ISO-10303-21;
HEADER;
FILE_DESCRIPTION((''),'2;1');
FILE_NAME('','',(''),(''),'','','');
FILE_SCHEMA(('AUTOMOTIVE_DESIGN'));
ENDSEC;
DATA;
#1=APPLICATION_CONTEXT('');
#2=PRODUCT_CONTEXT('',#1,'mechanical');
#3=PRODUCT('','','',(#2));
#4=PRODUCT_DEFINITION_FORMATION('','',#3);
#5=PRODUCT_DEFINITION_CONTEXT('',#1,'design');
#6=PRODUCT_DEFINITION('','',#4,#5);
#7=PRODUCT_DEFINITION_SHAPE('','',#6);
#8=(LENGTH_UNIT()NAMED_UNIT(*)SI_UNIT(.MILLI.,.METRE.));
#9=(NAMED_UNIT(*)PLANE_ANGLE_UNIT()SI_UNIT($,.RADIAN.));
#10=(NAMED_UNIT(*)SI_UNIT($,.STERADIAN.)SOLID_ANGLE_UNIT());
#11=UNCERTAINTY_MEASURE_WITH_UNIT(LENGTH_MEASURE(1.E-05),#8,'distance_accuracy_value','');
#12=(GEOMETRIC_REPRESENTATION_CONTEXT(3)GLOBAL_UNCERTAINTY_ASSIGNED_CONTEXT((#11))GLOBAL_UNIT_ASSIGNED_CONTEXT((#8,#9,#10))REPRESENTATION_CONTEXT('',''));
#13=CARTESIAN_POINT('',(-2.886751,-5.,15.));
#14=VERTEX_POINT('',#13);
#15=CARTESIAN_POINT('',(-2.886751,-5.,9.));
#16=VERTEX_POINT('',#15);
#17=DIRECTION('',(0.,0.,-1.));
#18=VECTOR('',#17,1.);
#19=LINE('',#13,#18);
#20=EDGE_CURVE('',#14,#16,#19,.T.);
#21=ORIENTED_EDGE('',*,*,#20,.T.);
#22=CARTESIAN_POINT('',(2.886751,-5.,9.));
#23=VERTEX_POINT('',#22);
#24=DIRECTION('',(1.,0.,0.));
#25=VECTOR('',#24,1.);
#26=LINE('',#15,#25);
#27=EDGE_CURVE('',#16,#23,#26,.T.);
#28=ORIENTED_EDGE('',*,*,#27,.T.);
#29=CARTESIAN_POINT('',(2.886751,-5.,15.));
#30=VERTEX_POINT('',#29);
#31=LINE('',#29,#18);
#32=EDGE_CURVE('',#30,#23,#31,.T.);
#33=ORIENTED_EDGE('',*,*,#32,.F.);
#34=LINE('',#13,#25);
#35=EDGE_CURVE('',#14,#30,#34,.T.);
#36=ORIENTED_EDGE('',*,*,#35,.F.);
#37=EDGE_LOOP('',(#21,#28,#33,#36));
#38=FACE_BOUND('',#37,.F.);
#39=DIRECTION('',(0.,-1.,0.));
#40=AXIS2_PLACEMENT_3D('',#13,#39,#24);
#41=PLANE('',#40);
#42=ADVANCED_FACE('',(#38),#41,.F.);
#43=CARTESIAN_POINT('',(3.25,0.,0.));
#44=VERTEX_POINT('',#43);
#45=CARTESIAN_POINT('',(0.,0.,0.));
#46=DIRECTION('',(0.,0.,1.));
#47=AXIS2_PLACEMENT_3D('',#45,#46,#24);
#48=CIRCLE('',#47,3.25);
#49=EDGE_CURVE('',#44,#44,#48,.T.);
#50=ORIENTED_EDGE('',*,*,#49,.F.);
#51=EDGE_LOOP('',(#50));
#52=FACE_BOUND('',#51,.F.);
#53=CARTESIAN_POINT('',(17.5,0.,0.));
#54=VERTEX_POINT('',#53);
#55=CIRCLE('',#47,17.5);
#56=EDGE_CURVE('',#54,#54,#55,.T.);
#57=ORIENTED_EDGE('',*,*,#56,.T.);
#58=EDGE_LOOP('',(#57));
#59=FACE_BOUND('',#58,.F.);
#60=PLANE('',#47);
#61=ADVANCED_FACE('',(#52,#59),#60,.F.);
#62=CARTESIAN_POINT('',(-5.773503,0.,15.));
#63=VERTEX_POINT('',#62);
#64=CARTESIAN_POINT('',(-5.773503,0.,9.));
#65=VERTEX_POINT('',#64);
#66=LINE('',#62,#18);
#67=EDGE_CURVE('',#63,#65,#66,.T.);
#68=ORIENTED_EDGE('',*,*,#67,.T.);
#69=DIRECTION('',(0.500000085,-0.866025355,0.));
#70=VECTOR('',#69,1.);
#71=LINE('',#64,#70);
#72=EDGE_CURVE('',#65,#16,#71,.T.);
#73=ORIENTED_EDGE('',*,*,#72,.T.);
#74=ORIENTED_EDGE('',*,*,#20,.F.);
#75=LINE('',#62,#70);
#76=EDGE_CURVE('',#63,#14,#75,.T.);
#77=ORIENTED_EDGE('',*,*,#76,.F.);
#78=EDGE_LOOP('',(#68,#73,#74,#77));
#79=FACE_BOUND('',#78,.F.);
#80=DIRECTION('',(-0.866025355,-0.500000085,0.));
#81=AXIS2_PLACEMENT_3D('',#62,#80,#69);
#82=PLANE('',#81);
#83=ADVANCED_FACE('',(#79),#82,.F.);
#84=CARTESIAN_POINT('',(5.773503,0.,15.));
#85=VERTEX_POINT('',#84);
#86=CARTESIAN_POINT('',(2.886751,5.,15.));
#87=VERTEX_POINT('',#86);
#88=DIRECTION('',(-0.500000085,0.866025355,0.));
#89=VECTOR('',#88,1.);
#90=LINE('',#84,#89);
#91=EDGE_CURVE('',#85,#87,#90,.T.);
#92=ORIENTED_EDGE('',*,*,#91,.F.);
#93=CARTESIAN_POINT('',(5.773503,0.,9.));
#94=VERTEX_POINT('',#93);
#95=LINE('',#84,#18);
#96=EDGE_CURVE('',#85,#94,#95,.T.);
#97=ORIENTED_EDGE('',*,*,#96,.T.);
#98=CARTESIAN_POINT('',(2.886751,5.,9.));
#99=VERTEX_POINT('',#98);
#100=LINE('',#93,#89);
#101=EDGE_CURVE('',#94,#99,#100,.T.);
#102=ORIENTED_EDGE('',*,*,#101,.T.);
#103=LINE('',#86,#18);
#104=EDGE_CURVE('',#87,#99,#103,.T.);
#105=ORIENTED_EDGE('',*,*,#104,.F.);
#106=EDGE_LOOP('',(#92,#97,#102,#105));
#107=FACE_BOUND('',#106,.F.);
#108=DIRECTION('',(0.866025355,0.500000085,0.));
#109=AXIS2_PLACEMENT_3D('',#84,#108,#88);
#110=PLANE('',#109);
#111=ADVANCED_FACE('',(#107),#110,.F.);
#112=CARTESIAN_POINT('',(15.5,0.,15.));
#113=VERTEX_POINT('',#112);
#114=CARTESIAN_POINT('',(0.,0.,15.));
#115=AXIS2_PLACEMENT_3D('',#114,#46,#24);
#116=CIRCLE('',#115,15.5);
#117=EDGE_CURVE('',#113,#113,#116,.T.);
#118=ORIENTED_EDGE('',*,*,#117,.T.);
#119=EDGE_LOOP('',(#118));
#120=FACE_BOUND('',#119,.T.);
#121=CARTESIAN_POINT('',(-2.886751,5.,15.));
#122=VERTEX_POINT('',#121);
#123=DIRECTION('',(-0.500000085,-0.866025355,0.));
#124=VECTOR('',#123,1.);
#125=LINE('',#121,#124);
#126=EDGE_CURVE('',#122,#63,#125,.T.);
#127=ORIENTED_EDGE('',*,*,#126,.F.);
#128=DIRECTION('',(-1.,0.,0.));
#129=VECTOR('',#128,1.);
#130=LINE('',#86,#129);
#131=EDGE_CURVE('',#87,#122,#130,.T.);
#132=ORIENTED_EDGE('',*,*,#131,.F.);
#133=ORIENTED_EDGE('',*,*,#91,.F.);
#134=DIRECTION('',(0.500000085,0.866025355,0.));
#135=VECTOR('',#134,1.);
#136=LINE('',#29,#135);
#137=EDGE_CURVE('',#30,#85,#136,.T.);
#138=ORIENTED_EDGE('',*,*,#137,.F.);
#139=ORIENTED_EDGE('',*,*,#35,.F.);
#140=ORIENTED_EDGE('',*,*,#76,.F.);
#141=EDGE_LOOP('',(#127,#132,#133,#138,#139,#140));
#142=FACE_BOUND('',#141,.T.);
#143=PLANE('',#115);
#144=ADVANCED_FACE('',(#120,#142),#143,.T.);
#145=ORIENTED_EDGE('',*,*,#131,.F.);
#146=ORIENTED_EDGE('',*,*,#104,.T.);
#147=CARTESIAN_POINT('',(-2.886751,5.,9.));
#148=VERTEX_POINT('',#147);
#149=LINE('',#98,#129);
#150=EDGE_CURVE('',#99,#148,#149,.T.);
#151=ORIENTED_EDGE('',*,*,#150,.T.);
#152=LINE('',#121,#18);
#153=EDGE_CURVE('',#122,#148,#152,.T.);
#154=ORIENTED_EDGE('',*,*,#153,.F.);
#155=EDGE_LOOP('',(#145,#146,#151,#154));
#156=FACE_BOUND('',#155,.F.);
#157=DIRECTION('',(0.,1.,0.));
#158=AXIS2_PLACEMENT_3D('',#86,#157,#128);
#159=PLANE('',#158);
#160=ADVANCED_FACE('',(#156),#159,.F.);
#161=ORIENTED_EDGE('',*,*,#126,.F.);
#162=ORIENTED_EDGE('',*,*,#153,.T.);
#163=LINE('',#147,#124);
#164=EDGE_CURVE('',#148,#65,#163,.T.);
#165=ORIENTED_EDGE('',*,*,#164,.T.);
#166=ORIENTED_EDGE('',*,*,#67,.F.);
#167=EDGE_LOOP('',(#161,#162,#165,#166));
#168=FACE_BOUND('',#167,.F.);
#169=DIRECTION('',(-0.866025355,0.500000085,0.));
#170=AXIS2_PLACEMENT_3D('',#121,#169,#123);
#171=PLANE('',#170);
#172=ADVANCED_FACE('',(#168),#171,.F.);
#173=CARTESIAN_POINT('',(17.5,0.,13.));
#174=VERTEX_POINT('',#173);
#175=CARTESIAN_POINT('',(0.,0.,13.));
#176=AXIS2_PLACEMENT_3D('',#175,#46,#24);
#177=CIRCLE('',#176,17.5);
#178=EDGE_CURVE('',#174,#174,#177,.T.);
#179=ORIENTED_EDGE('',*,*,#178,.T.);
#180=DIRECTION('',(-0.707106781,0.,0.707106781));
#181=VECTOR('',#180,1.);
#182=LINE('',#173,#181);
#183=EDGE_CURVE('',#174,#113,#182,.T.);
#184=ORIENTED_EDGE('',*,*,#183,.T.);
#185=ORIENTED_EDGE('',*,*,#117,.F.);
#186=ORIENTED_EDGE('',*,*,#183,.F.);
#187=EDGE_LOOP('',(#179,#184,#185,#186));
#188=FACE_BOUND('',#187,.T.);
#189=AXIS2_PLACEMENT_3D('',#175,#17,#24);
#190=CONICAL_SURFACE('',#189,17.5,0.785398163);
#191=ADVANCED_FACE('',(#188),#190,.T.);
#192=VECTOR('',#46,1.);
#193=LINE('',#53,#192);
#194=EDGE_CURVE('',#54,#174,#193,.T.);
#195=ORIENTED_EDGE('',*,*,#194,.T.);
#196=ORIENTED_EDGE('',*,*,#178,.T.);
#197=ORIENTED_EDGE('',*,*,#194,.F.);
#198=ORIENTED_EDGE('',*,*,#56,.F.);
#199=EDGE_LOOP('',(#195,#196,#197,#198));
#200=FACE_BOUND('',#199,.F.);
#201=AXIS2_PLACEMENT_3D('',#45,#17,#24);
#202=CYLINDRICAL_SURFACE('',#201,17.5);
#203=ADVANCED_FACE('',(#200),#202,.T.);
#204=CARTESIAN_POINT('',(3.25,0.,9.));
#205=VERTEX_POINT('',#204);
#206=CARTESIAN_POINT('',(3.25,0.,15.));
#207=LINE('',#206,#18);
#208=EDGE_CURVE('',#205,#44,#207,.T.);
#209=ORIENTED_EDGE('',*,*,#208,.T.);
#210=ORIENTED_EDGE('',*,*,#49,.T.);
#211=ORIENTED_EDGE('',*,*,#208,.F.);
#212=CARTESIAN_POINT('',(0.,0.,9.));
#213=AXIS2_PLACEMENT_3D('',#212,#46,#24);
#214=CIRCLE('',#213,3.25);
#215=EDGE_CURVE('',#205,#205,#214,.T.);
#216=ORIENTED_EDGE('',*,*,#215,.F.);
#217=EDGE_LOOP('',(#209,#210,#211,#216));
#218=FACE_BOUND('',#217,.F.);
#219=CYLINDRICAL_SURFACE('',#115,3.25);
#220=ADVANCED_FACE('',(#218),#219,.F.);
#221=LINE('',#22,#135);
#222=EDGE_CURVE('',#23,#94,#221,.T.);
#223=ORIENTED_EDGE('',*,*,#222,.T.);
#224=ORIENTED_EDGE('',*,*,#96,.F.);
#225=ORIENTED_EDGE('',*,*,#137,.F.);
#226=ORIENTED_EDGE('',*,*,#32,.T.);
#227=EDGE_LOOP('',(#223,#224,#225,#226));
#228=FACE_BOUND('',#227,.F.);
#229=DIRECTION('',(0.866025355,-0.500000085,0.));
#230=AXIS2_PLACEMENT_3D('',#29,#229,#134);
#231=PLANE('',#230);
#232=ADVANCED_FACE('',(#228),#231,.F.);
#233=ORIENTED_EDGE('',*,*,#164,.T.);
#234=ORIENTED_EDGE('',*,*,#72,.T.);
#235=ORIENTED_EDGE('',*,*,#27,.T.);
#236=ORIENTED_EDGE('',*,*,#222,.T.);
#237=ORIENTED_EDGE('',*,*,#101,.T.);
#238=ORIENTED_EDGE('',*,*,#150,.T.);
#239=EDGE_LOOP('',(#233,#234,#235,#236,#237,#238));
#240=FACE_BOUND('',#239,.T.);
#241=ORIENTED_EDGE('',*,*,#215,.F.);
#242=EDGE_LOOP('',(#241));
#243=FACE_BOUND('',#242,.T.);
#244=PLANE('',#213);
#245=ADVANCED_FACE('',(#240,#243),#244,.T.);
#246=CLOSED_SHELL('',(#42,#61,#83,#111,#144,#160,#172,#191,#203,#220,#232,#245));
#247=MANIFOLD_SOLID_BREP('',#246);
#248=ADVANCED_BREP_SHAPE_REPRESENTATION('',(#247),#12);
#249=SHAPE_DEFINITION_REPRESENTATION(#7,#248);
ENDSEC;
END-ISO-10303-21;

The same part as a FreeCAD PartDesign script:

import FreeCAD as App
import Part
import Sketcher

V = App.Vector
Q = App.Units.Quantity


def edges_at(feature, points):
    """Names of the edges that pass closest to the given points."""
    edges = feature.Shape.Edges
    near = lambda p: min(range(len(edges)), key=lambda i: edges[i].distToShape(Part.Vertex(*p))[0])
    return sorted({f"Edge{near(p) + 1}" for p in points})


def add_polygon(sketch, points):
    """Adds a closed chain of lines whose ends are joined by coincident constraints."""
    first, n = sketch.GeometryCount, len(points)
    for a, b in zip(points, points[1:] + points[:1]):
        sketch.addGeometry(Part.LineSegment(App.Vector(*a, 0), App.Vector(*b, 0)), False)
    for i in range(n):
        sketch.addConstraint(Sketcher.Constraint("Coincident", first + i, 2, first + (i + 1) % n, 1))

doc = App.newDocument("Part")
body = doc.addObject("PartDesign::Body", "Body")

# Sketch on XY plane
sketch1 = body.newObject("Sketcher::SketchObject", "Sketch")
sketch1.AttachmentSupport = (doc.getObject("XY_Plane"), [""])
sketch1.MapMode = "FlatFace"
sketch1.addGeometry(Part.Circle(V(0, 0, 0), V(0, 0, 1), 18), False)
sketch1.addConstraint([
    Sketcher.Constraint("Coincident", 0, 3, -1, 1),
    Sketcher.Constraint("Diameter", 0, Q("35 mm")),
])
pad1 = body.newObject("PartDesign::Pad", "Pad")
pad1.Profile = sketch1
pad1.Length = 15

# Sketch on XY plane
sketch2 = body.newObject("Sketcher::SketchObject", "Sketch001")
sketch2.AttachmentSupport = (doc.getObject("XY_Plane"), [""])
sketch2.MapMode = "FlatFace"
sketch2.AttachmentOffset = App.Placement(V(0, 0, 15), App.Rotation())
sketch2.addGeometry(Part.Circle(V(0, 0, 0), V(0, 0, 1), 3.2), False)
sketch2.addConstraint([
    Sketcher.Constraint("Coincident", 0, 3, -1, 1),
    Sketcher.Constraint("Diameter", 0, Q("6.5 mm")),
])
pocket1 = body.newObject("PartDesign::Pocket", "Pocket")
pocket1.Profile = sketch2
pocket1.Type = "ThroughAll"

# Sketch on XY plane
sketch3 = body.newObject("Sketcher::SketchObject", "Sketch002")
sketch3.AttachmentSupport = (doc.getObject("XY_Plane"), [""])
sketch3.MapMode = "FlatFace"
sketch3.AttachmentOffset = App.Placement(V(0, 0, 15), App.Rotation())
add_polygon(sketch3, [(3, 5), (-3, 5), (-6, 0), (-3, -5), (3, -5), (6, 0)])  # lines 0-5
sketch3.addConstraint([
    Sketcher.Constraint("Horizontal", 0),
    Sketcher.Constraint("Horizontal", 3),
    Sketcher.Constraint("Symmetric", 0, 2, 3, 2, -1, 1),
    Sketcher.Constraint("Symmetric", 1, 2, 4, 2, -1, 1),
    Sketcher.Constraint("PointOnObject", 1, 2, -1),
    Sketcher.Constraint("Parallel", 2, 5),
    Sketcher.Constraint("Vertical", 0, 2, 2, 2),
    Sketcher.Constraint("Angle", 1, Q("-120.000006 deg")),
    Sketcher.Constraint("DistanceY", -1, 1, 0, 2, Q("5 mm")),
    Sketcher.Constraint("DistanceX", 0, 2, 0, 1, Q("5.773502 mm")),
])
pocket2 = body.newObject("PartDesign::Pocket", "Pocket001")
pocket2.Profile = sketch3
pocket2.Length = 6
doc.recompute()

chamfer = body.newObject("PartDesign::Chamfer", "Chamfer")
chamfer.Base = (pocket2, edges_at(pocket2, [(-17.5, 0, 15)]))
chamfer.Size = 2

doc.recompute()
